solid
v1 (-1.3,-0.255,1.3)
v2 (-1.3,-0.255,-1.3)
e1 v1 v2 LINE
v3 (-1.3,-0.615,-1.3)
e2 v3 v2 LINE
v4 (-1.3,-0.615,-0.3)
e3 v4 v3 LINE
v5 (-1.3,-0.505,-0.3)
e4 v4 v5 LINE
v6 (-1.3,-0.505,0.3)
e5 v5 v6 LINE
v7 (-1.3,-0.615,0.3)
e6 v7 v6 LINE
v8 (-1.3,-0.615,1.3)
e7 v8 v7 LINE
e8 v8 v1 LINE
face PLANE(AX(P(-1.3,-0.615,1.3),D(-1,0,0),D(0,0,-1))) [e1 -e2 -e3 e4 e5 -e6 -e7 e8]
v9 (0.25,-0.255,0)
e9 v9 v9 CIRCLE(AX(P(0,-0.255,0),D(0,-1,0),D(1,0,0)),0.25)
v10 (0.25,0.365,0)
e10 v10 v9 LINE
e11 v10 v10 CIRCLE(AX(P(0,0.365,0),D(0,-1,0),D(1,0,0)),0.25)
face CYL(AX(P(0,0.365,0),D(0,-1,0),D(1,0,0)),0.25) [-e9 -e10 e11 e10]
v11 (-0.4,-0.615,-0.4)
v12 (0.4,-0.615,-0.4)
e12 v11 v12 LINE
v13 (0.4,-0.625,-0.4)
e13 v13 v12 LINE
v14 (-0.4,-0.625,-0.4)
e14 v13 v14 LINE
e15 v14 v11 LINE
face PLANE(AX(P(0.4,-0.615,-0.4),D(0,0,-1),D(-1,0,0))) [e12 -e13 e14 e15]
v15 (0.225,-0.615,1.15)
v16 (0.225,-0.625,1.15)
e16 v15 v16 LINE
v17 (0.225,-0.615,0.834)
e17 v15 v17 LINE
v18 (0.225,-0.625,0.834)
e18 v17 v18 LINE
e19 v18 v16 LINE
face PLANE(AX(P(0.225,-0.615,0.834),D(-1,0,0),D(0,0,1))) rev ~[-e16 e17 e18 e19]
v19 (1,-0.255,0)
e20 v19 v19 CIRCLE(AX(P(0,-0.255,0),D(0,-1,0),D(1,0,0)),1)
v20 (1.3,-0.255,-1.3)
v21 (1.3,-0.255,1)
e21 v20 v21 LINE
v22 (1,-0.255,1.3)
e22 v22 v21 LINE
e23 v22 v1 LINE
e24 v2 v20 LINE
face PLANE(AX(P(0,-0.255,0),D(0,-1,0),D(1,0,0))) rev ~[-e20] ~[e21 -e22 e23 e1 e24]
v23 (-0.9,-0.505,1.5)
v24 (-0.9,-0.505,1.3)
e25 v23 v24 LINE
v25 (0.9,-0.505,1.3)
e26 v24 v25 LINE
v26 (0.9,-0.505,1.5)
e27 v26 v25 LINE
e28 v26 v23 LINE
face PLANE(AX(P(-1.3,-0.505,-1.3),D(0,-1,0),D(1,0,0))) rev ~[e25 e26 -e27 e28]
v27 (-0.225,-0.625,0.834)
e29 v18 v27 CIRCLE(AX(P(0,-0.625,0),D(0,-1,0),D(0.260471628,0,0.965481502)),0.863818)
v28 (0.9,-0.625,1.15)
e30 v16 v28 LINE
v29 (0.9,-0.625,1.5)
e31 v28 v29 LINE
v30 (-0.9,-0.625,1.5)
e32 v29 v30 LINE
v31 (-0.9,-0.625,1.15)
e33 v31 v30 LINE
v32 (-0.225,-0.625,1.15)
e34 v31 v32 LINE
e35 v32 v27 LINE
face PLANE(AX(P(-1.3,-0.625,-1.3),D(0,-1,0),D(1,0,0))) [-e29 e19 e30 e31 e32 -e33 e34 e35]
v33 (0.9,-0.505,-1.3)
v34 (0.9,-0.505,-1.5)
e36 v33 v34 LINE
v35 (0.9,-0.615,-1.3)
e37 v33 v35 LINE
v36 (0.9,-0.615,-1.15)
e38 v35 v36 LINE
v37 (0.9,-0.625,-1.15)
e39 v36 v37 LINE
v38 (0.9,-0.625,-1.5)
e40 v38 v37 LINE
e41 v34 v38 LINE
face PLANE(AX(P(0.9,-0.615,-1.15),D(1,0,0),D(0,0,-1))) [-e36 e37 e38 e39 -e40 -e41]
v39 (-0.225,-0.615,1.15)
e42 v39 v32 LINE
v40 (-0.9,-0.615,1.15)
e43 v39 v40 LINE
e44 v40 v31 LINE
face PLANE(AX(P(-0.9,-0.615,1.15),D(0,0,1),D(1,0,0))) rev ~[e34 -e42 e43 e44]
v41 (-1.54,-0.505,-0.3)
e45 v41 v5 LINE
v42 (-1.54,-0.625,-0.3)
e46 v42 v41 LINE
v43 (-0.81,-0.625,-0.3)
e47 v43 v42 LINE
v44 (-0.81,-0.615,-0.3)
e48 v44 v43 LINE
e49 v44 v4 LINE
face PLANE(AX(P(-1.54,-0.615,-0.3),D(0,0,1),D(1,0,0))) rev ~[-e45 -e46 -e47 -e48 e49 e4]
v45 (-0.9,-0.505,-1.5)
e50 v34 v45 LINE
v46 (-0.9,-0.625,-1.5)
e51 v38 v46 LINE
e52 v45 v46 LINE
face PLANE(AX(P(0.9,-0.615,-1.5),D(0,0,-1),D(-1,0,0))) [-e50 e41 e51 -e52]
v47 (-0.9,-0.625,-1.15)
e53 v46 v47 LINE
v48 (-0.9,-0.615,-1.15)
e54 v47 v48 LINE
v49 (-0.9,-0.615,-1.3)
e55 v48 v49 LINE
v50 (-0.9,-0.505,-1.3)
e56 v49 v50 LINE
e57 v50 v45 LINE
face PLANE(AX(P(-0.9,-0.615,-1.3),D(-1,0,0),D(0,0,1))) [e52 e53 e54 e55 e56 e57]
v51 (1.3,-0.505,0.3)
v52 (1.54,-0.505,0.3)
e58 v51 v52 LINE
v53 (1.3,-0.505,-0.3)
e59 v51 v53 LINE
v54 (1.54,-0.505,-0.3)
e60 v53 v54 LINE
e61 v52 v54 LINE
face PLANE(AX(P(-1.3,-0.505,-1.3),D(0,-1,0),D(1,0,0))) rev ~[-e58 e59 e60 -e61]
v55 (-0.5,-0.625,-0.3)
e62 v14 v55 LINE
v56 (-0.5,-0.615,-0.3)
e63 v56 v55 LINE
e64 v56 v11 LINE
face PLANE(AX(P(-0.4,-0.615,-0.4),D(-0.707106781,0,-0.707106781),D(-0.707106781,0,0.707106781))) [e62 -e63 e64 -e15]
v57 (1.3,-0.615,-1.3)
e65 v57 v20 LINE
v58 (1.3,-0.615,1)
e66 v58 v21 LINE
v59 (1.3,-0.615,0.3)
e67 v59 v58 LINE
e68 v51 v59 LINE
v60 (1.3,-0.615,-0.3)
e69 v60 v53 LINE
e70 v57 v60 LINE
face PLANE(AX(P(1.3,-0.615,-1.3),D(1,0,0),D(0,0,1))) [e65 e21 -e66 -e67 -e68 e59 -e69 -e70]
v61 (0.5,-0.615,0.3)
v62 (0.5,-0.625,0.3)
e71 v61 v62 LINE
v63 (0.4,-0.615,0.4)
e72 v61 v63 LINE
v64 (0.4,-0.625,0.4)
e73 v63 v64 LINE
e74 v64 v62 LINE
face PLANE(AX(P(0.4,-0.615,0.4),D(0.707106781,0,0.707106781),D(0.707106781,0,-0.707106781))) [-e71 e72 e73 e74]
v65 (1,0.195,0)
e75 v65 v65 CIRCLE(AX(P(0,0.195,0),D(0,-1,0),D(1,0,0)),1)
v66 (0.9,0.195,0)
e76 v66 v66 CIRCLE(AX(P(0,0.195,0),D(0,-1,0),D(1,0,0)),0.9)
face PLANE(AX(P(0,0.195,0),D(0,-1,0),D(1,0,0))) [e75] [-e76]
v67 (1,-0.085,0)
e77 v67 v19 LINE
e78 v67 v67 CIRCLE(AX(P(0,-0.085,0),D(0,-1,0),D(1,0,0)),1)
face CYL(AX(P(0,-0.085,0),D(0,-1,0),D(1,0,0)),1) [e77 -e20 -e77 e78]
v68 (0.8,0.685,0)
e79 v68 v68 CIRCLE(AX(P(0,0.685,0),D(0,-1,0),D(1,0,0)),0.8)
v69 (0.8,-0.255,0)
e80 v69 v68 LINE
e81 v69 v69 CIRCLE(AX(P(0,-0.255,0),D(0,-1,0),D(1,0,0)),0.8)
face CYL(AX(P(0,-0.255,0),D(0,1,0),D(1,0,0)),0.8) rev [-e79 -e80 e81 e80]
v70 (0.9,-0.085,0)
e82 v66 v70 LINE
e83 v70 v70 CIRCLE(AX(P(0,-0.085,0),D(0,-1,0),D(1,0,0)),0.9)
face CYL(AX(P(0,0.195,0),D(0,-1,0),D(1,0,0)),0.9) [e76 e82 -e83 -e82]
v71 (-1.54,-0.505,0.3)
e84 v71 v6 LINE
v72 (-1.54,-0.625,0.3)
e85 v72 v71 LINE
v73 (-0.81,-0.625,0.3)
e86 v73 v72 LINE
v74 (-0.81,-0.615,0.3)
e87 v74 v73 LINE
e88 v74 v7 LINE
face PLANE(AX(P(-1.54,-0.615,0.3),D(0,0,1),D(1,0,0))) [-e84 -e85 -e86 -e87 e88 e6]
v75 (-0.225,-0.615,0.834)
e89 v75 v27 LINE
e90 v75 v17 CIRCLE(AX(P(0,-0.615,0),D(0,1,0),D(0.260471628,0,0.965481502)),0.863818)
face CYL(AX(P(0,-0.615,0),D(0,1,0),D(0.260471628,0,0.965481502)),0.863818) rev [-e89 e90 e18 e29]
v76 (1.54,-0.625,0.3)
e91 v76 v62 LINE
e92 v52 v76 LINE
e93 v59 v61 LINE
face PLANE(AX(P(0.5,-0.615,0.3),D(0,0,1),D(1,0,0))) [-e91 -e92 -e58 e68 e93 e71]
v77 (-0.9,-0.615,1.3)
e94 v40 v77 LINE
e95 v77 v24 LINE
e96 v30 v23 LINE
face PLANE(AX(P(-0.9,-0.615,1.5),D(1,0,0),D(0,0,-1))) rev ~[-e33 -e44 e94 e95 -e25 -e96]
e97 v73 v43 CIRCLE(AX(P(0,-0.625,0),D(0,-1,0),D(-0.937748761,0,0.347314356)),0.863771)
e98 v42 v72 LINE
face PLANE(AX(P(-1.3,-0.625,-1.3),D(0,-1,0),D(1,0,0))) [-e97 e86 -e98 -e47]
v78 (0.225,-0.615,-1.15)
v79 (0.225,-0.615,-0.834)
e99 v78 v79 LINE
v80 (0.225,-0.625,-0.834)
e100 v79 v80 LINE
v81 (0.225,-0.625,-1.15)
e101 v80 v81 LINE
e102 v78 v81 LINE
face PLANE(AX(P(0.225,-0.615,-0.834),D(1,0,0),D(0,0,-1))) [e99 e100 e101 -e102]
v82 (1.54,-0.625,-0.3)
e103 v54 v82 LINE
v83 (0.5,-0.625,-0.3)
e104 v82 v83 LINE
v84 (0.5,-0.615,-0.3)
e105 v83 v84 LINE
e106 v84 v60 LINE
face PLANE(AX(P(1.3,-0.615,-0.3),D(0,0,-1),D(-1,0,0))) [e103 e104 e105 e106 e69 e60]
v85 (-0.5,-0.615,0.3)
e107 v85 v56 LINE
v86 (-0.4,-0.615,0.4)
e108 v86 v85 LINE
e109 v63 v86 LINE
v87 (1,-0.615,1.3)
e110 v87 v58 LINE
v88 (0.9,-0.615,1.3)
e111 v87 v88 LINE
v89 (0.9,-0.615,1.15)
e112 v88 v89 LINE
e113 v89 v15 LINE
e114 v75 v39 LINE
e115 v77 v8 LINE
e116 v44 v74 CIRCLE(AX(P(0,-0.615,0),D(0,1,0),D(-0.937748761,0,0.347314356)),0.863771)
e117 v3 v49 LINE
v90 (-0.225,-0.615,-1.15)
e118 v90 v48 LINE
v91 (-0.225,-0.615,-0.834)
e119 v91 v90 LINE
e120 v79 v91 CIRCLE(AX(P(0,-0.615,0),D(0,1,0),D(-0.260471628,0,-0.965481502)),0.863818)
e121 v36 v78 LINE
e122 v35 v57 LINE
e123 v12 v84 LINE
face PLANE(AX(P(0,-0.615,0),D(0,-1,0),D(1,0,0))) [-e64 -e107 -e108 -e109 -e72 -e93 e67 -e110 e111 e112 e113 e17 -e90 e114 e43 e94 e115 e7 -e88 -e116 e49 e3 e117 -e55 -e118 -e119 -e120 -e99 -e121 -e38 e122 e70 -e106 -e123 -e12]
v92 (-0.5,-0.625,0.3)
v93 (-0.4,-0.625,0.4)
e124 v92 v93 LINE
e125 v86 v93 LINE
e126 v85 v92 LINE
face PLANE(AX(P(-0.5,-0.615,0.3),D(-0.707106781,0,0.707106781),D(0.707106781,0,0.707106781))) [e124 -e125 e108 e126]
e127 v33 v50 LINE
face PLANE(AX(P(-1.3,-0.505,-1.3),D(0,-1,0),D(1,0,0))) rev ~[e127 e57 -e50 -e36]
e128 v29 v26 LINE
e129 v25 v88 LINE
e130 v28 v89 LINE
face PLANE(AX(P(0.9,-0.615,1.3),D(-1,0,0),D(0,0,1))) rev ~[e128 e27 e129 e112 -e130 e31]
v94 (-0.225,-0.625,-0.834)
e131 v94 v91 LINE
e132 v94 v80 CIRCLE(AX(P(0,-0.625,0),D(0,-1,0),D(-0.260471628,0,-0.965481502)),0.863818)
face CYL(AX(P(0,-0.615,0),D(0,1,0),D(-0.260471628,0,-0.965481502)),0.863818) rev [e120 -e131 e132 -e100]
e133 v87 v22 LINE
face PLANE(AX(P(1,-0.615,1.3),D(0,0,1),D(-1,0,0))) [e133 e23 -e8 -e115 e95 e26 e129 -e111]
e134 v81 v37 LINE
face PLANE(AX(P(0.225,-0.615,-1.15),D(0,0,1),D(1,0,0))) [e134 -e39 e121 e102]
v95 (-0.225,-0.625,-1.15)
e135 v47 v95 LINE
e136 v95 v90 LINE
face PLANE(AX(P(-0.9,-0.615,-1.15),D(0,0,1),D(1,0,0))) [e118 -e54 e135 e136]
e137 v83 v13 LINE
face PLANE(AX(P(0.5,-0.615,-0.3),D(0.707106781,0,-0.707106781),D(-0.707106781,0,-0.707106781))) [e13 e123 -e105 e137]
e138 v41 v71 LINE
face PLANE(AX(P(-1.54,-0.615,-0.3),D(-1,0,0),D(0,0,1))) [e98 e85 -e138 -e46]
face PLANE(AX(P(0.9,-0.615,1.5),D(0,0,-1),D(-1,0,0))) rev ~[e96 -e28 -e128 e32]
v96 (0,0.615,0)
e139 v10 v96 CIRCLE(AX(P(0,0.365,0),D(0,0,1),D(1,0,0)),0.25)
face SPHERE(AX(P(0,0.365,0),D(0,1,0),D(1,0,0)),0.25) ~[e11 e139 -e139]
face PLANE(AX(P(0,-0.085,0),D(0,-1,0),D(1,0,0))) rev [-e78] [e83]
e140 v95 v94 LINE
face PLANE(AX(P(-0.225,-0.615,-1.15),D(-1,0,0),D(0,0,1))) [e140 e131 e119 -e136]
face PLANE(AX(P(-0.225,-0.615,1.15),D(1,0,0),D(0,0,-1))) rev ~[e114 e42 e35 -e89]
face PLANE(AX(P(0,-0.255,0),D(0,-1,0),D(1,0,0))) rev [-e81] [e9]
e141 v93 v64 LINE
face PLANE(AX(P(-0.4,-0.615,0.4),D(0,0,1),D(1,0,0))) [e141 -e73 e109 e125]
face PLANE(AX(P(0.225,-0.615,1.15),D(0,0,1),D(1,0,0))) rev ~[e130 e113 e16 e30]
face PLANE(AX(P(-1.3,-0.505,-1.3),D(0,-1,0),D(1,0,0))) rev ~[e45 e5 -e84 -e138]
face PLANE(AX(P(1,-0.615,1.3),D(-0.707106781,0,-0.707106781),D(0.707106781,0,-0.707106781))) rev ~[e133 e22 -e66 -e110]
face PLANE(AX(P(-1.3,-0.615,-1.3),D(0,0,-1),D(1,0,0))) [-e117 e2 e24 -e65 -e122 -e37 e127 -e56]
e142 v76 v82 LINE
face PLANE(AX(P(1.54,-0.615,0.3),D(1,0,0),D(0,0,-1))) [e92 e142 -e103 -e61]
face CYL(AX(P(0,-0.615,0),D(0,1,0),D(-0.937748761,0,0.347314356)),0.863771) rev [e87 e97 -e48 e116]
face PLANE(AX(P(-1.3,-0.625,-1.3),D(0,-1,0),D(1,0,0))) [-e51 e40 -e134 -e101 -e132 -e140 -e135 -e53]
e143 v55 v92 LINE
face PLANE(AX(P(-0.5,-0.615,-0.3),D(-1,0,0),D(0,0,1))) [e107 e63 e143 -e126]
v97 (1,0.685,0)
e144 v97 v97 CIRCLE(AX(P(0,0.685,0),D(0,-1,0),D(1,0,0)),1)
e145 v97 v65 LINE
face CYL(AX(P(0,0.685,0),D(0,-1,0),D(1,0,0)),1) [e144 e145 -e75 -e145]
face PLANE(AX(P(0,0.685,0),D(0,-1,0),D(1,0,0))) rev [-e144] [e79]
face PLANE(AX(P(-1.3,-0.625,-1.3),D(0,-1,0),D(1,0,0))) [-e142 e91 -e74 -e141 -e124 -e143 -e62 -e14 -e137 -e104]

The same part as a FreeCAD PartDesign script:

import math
import FreeCAD as App
import Part
import Sketcher
Q = App.Units.Quantity

doc = App.newDocument("Part")
body = doc.addObject("PartDesign::Body", "Body")

sketch1 = body.newObject("Sketcher::SketchObject", "Sketch")
sketch1.AttachmentSupport = (doc.getObject("XY_Plane"), [""])
sketch1.MapMode = "FlatFace"
sketch1.addGeometry([
    Part.ArcOfCircle(Part.Circle(App.Vector(0, 0.36, 0), App.Vector(0, 0, 1), 0.25), math.radians(0), math.radians(90)),
    Part.LineSegment(App.Vector(0, 0.61, 0), App.Vector(0, -0.61, 0)),
    Part.LineSegment(App.Vector(0, -0.61, 0), App.Vector(1, -0.61, 0)),
    Part.LineSegment(App.Vector(1, -0.61, 0), App.Vector(1, -0.09, 0)),
    Part.LineSegment(App.Vector(1, -0.09, 0), App.Vector(0.9, -0.09, 0)),
    Part.LineSegment(App.Vector(0.9, -0.09, 0), App.Vector(0.9, 0.2, 0)),
    Part.LineSegment(App.Vector(0.9, 0.2, 0), App.Vector(1, 0.2, 0)),
    Part.LineSegment(App.Vector(1, 0.2, 0), App.Vector(1, 0.69, 0)),
    Part.LineSegment(App.Vector(1, 0.69, 0), App.Vector(0.8, 0.69, 0)),
    Part.LineSegment(App.Vector(0.8, 0.69, 0), App.Vector(0.8, -0.26, 0)),
    Part.LineSegment(App.Vector(0.8, -0.26, 0), App.Vector(0.25, -0.26, 0)),
    Part.LineSegment(App.Vector(0.25, -0.26, 0), App.Vector(0.25, 0.36, 0)),
], False)
sketch1.addConstraint([
    Sketcher.Constraint("Coincident", 0, 2, 1, 1),
    Sketcher.Constraint("Coincident", 1, 2, 2, 1),
    Sketcher.Constraint("Coincident", 2, 2, 3, 1),
    Sketcher.Constraint("Coincident", 3, 2, 4, 1),
    Sketcher.Constraint("Coincident", 4, 2, 5, 1),
    Sketcher.Constraint("Coincident", 5, 2, 6, 1),
    Sketcher.Constraint("Coincident", 6, 2, 7, 1),
    Sketcher.Constraint("Coincident", 7, 2, 8, 1),
    Sketcher.Constraint("Coincident", 8, 2, 9, 1),
    Sketcher.Constraint("Coincident", 9, 2, 10, 1),
    Sketcher.Constraint("Coincident", 10, 2, 11, 1),
    Sketcher.Constraint("Tangent", 11, 2, 0, 1),
    Sketcher.Constraint("Vertical", 1),
    Sketcher.Constraint("Horizontal", 2),
    Sketcher.Constraint("Vertical", 3),
    Sketcher.Constraint("Horizontal", 4),
    Sketcher.Constraint("Vertical", 5),
    Sketcher.Constraint("Horizontal", 6),
    Sketcher.Constraint("Vertical", 7),
    Sketcher.Constraint("Horizontal", 8),
    Sketcher.Constraint("Vertical", 9),
    Sketcher.Constraint("Horizontal", 10),
    Sketcher.Constraint("Vertical", 11),
    Sketcher.Constraint("Symmetric", 0, 2, 1, 2, -1, 1),
    Sketcher.Constraint("PointOnObject", 0, 3, -2),
    Sketcher.Constraint("Vertical", 3, 2, 6, 2),
    Sketcher.Constraint("Radius", 0, Q("0.25 mm")),
    Sketcher.Constraint("DistanceX", 4, 2, 4, 1, Q("0.1 mm")),
    Sketcher.Constraint("DistanceY", 1, 2, 1, 1, Q("1.23 mm")),
    Sketcher.Constraint("DistanceY", 5, 1, 5, 2, Q("0.28 mm")),
    Sketcher.Constraint("DistanceY", 7, 1, 7, 2, Q("0.49 mm")),
    Sketcher.Constraint("DistanceX", 8, 2, 5, 2, Q("0.1 mm")),
    Sketcher.Constraint("DistanceX", 2, 1, 2, 2, Q("1 mm")),
    Sketcher.Constraint("DistanceY", 2, 2, 9, 2, Q("0.36 mm")),
    Sketcher.Constraint("DistanceY", 3, 1, 3, 2, Q("0.53 mm")),
])
revolution = body.newObject("PartDesign::Revolution", "Revolution")
revolution.Profile = sketch1
revolution.ReferenceAxis = (sketch1, ["V_Axis"])
revolution.Angle = 360

sketch2 = body.newObject("Sketcher::SketchObject", "Sketch001")
sketch2.AttachmentSupport = (doc.getObject("XZ_Plane"), [""])
sketch2.MapMode = "FlatFace"
sketch2.AttachmentOffset = App.Placement(App.Vector(0, 0, 0.615), App.Rotation())
sketch2.addGeometry([
    Part.LineSegment(App.Vector(-1.3, 1.3, 0), App.Vector(-1.3, -1.3, 0)),
    Part.LineSegment(App.Vector(-1.3, -1.3, 0), App.Vector(1.3, -1.3, 0)),
    Part.LineSegment(App.Vector(1.3, -1.3, 0), App.Vector(1.3, 1, 0)),
    Part.LineSegment(App.Vector(1.3, 1, 0), App.Vector(1, 1.3, 0)),
    Part.LineSegment(App.Vector(1, 1.3, 0), App.Vector(-1.3, 1.3, 0)),
], False)
sketch2.addConstraint([
    Sketcher.Constraint("Coincident", 0, 2, 1, 1),
    Sketcher.Constraint("Coincident", 1, 2, 2, 1),
    Sketcher.Constraint("Coincident", 2, 2, 3, 1),
    Sketcher.Constraint("Coincident", 3, 2, 4, 1),
    Sketcher.Constraint("Coincident", 4, 2, 0, 1),
    Sketcher.Constraint("Vertical", 0),
    Sketcher.Constraint("Horizontal", 1),
    Sketcher.Constraint("Vertical", 2),
    Sketcher.Constraint("Horizontal", 4),
    Sketcher.Constraint("Symmetric", 1, 2, 4, 2, -1, 1),
    Sketcher.Constraint("Equal", 1, 0),
    Sketcher.Constraint("Equal", 4, 2),
    Sketcher.Constraint("DistanceX", 1, 1, 1, 2, Q("2.6 mm")),
    Sketcher.Constraint("DistanceX", 3, 2, 2, 2, Q("0.3 mm")),
])
pad1 = body.newObject("PartDesign::Pad", "Pad")
pad1.Profile = sketch2
pad1.Length = 0.36
pad1.Reversed = True

sketch3 = body.newObject("Sketcher::SketchObject", "Sketch002")
sketch3.AttachmentSupport = (doc.getObject("XZ_Plane"), [""])
sketch3.MapMode = "FlatFace"
sketch3.AttachmentOffset = App.Placement(App.Vector(0, 0, 0.615), App.Rotation())
sketch3.addGeometry([
    Part.LineSegment(App.Vector(-0.9, -1.15, 0), App.Vector(-0.9, -1.5, 0)),
    Part.LineSegment(App.Vector(-0.9, -1.5, 0), App.Vector(0.9, -1.5, 0)),
    Part.LineSegment(App.Vector(0.9, -1.5, 0), App.Vector(0.9, -1.15, 0)),
    Part.LineSegment(App.Vector(0.9, -1.15, 0), App.Vector(0.23, -1.15, 0)),
    Part.LineSegment(App.Vector(0.23, -1.15, 0), App.Vector(0.23, -0.83, 0)),
    Part.ArcOfCircle(Part.Circle(App.Vector(0, 0, 0), App.Vector(0, 0, 1), 0.86), math.radians(-105), math.radians(-75)),
    Part.LineSegment(App.Vector(-0.23, -0.83, 0), App.Vector(-0.23, -1.15, 0)),
    Part.LineSegment(App.Vector(-0.23, -1.15, 0), App.Vector(-0.9, -1.15, 0)),
    Part.LineSegment(App.Vector(-1.54, -0.3, 0), App.Vector(-0.81, -0.3, 0)),
    Part.ArcOfCircle(Part.Circle(App.Vector(0, 0, 0), App.Vector(0, 0, 1), 0.86), math.radians(160), math.radians(200)),
    Part.LineSegment(App.Vector(-0.81, 0.3, 0), App.Vector(-1.54, 0.3, 0)),
    Part.LineSegment(App.Vector(-1.54, 0.3, 0), App.Vector(-1.54, -0.3, 0)),
    Part.LineSegment(App.Vector(0.5, -0.3, 0), App.Vector(1.54, -0.3, 0)),
    Part.LineSegment(App.Vector(1.54, -0.3, 0), App.Vector(1.54, 0.3, 0)),
    Part.LineSegment(App.Vector(1.54, 0.3, 0), App.Vector(0.5, 0.3, 0)),
    Part.LineSegment(App.Vector(0.5, 0.3, 0), App.Vector(0.4, 0.4, 0)),
    Part.LineSegment(App.Vector(0.4, 0.4, 0), App.Vector(-0.4, 0.4, 0)),
    Part.LineSegment(App.Vector(-0.4, 0.4, 0), App.Vector(-0.5, 0.3, 0)),
    Part.LineSegment(App.Vector(-0.5, 0.3, 0), App.Vector(-0.5, -0.3, 0)),
    Part.LineSegment(App.Vector(-0.5, -0.3, 0), App.Vector(-0.4, -0.4, 0)),
    Part.LineSegment(App.Vector(-0.4, -0.4, 0), App.Vector(0.4, -0.4, 0)),
    Part.LineSegment(App.Vector(0.4, -0.4, 0), App.Vector(0.5, -0.3, 0)),
    Part.LineSegment(App.Vector(-0.9, 1.5, 0), App.Vector(-0.9, 1.15, 0)),
    Part.LineSegment(App.Vector(-0.9, 1.15, 0), App.Vector(-0.23, 1.15, 0)),
    Part.LineSegment(App.Vector(-0.23, 1.15, 0), App.Vector(-0.23, 0.83, 0)),
    Part.ArcOfCircle(Part.Circle(App.Vector(0, 0, 0), App.Vector(0, 0, 1), 0.86), math.radians(75), math.radians(105)),
    Part.LineSegment(App.Vector(0.23, 0.83, 0), App.Vector(0.23, 1.15, 0)),
    Part.LineSegment(App.Vector(0.23, 1.15, 0), App.Vector(0.9, 1.15, 0)),
    Part.LineSegment(App.Vector(0.9, 1.15, 0), App.Vector(0.9, 1.5, 0)),
    Part.LineSegment(App.Vector(0.9, 1.5, 0), App.Vector(-0.9, 1.5, 0)),
], False)
sketch3.addConstraint([
    Sketcher.Constraint("Coincident", 0, 2, 1, 1),
    Sketcher.Constraint("Coincident", 1, 2, 2, 1),
    Sketcher.Constraint("Coincident", 2, 2, 3, 1),
    Sketcher.Constraint("Coincident", 3, 2, 4, 1),
    Sketcher.Constraint("Coincident", 4, 2, 5, 2),
    Sketcher.Constraint("Coincident", 5, 1, 6, 1),
    Sketcher.Constraint("Coincident", 6, 2, 7, 1),
    Sketcher.Constraint("Coincident", 7, 2, 0, 1),
    Sketcher.Constraint("Coincident", 8, 2, 9, 2),
    Sketcher.Constraint("Coincident", 9, 1, 10, 1),
    Sketcher.Constraint("Coincident", 10, 2, 11, 1),
    Sketcher.Constraint("Coincident", 11, 2, 8, 1),
    Sketcher.Constraint("Coincident", 12, 2, 13, 1),
    Sketcher.Constraint("Coincident", 13, 2, 14, 1),
    Sketcher.Constraint("Coincident", 14, 2, 15, 1),
    Sketcher.Constraint("Coincident", 15, 2, 16, 1),
    Sketcher.Constraint("Coincident", 16, 2, 17, 1),
    Sketcher.Constraint("Coincident", 17, 2, 18, 1),
    Sketcher.Constraint("Coincident", 18, 2, 19, 1),
    Sketcher.Constraint("Coincident", 19, 2, 20, 1),
    Sketcher.Constraint("Coincident", 20, 2, 21, 1),
    Sketcher.Constraint("Coincident", 21, 2, 12, 1),
    Sketcher.Constraint("Coincident", 22, 2, 23, 1),
    Sketcher.Constraint("Coincident", 23, 2, 24, 1),
    Sketcher.Constraint("Coincident", 24, 2, 25, 2),
    Sketcher.Constraint("Coincident", 25, 1, 26, 1),
    Sketcher.Constraint("Coincident", 26, 2, 27, 1),
    Sketcher.Constraint("Coincident", 27, 2, 28, 1),
    Sketcher.Constraint("Coincident", 28, 2, 29, 1),
    Sketcher.Constraint("Coincident", 29, 2, 22, 1),
    Sketcher.Constraint("Vertical", 0),
    Sketcher.Constraint("Horizontal", 1),
    Sketcher.Constraint("Vertical", 2),
    Sketcher.Constraint("Horizontal", 3),
    Sketcher.Constraint("Vertical", 4),
    Sketcher.Constraint("Vertical", 6),
    Sketcher.Constraint("Horizontal", 7),
    Sketcher.Constraint("Horizontal", 8),
    Sketcher.Constraint("Horizontal", 10),
    Sketcher.Constraint("Vertical", 11),
    Sketcher.Constraint("Horizontal", 12),
    Sketcher.Constraint("Vertical", 13),
    Sketcher.Constraint("Horizontal", 14),
    Sketcher.Constraint("Horizontal", 16),
    Sketcher.Constraint("Vertical", 18),
    Sketcher.Constraint("Horizontal", 20),
    Sketcher.Constraint("Vertical", 22),
    Sketcher.Constraint("Horizontal", 23),
    Sketcher.Constraint("Vertical", 24),
    Sketcher.Constraint("Vertical", 26),
    Sketcher.Constraint("Horizontal", 27),
    Sketcher.Constraint("Vertical", 28),
    Sketcher.Constraint("Horizontal", 29),
    Sketcher.Constraint("Coincident", 5, 3, -1, 1),
    Sketcher.Constraint("Coincident", 9, 3, -1, 1),
    Sketcher.Constraint("Coincident", 25, 3, -1, 1),
    Sketcher.Constraint("Equal", 5, 9),
    Sketcher.Constraint("Equal", 9, 25),
    Sketcher.Constraint("Symmetric", 10, 2, 12, 2, -1, 1),
    Sketcher.Constraint("Symmetric", 14, 2, 18, 2, -1, 1),
    Sketcher.Constraint("Symmetric", 15, 2, 19, 2, -1, 1),
    Sketcher.Constraint("Symmetric", 17, 2, 21, 2, -1, 1),
    Sketcher.Constraint("Symmetric", 2, 2, 22, 2, -1, 1),
    Sketcher.Constraint("Symmetric", 6, 2, 26, 2, -1, 1),
    Sketcher.Constraint("Symmetric", 0, 2, 28, 2, -1, 1),
    Sketcher.Constraint("Symmetric", 3, 2, 6, 2, -2),
    Sketcher.Constraint("Perpendicular", 15, 17),
    Sketcher.Constraint("Perpendicular", 19, 21),
    Sketcher.Constraint("Horizontal", 11, 2, 12, 2),
    Sketcher.Constraint("Horizontal", 10, 2, 13, 2),
    Sketcher.Constraint("Horizontal", 24, 2, 25, 1),
    Sketcher.Constraint("Vertical", 16, 2, 19, 2),
    Sketcher.Constraint("Vertical", 7, 2, 22, 2),
    Sketcher.Constraint("DistanceX", 1, 1, 1, 2, Q("1.8 mm")),
    Sketcher.Constraint("DistanceX", 16, 2, 16, 1, Q("0.8 mm")),
    Sketcher.Constraint("DistanceY", 11, 2, 11, 1, Q("0.6 mm")),
    Sketcher.Constraint("DistanceX", 8, 1, 8, 2, Q("0.73 mm")),
    Sketcher.Constraint("DistanceY", 0, 2, 0, 1, Q("0.35 mm")),
    Sketcher.Constraint("DistanceX", 5, 1, 4, 2, Q("0.45 mm")),
    Sketcher.Constraint("DistanceX", 12, 1, 12, 2, Q("1.04 mm")),
    Sketcher.Constraint("DistanceY", 0, 2, -1, 1, Q("1.5 mm")),
    Sketcher.Constraint("DistanceX", -1, 1, 14, 2, Q("0.5 mm")),
])
pad2 = body.newObject("PartDesign::Pad", "Pad001")
pad2.Profile = sketch3
pad2.Type = "TwoLengths"
pad2.Length = 0.01
pad2.Length2 = 0.11

doc.recompute()
